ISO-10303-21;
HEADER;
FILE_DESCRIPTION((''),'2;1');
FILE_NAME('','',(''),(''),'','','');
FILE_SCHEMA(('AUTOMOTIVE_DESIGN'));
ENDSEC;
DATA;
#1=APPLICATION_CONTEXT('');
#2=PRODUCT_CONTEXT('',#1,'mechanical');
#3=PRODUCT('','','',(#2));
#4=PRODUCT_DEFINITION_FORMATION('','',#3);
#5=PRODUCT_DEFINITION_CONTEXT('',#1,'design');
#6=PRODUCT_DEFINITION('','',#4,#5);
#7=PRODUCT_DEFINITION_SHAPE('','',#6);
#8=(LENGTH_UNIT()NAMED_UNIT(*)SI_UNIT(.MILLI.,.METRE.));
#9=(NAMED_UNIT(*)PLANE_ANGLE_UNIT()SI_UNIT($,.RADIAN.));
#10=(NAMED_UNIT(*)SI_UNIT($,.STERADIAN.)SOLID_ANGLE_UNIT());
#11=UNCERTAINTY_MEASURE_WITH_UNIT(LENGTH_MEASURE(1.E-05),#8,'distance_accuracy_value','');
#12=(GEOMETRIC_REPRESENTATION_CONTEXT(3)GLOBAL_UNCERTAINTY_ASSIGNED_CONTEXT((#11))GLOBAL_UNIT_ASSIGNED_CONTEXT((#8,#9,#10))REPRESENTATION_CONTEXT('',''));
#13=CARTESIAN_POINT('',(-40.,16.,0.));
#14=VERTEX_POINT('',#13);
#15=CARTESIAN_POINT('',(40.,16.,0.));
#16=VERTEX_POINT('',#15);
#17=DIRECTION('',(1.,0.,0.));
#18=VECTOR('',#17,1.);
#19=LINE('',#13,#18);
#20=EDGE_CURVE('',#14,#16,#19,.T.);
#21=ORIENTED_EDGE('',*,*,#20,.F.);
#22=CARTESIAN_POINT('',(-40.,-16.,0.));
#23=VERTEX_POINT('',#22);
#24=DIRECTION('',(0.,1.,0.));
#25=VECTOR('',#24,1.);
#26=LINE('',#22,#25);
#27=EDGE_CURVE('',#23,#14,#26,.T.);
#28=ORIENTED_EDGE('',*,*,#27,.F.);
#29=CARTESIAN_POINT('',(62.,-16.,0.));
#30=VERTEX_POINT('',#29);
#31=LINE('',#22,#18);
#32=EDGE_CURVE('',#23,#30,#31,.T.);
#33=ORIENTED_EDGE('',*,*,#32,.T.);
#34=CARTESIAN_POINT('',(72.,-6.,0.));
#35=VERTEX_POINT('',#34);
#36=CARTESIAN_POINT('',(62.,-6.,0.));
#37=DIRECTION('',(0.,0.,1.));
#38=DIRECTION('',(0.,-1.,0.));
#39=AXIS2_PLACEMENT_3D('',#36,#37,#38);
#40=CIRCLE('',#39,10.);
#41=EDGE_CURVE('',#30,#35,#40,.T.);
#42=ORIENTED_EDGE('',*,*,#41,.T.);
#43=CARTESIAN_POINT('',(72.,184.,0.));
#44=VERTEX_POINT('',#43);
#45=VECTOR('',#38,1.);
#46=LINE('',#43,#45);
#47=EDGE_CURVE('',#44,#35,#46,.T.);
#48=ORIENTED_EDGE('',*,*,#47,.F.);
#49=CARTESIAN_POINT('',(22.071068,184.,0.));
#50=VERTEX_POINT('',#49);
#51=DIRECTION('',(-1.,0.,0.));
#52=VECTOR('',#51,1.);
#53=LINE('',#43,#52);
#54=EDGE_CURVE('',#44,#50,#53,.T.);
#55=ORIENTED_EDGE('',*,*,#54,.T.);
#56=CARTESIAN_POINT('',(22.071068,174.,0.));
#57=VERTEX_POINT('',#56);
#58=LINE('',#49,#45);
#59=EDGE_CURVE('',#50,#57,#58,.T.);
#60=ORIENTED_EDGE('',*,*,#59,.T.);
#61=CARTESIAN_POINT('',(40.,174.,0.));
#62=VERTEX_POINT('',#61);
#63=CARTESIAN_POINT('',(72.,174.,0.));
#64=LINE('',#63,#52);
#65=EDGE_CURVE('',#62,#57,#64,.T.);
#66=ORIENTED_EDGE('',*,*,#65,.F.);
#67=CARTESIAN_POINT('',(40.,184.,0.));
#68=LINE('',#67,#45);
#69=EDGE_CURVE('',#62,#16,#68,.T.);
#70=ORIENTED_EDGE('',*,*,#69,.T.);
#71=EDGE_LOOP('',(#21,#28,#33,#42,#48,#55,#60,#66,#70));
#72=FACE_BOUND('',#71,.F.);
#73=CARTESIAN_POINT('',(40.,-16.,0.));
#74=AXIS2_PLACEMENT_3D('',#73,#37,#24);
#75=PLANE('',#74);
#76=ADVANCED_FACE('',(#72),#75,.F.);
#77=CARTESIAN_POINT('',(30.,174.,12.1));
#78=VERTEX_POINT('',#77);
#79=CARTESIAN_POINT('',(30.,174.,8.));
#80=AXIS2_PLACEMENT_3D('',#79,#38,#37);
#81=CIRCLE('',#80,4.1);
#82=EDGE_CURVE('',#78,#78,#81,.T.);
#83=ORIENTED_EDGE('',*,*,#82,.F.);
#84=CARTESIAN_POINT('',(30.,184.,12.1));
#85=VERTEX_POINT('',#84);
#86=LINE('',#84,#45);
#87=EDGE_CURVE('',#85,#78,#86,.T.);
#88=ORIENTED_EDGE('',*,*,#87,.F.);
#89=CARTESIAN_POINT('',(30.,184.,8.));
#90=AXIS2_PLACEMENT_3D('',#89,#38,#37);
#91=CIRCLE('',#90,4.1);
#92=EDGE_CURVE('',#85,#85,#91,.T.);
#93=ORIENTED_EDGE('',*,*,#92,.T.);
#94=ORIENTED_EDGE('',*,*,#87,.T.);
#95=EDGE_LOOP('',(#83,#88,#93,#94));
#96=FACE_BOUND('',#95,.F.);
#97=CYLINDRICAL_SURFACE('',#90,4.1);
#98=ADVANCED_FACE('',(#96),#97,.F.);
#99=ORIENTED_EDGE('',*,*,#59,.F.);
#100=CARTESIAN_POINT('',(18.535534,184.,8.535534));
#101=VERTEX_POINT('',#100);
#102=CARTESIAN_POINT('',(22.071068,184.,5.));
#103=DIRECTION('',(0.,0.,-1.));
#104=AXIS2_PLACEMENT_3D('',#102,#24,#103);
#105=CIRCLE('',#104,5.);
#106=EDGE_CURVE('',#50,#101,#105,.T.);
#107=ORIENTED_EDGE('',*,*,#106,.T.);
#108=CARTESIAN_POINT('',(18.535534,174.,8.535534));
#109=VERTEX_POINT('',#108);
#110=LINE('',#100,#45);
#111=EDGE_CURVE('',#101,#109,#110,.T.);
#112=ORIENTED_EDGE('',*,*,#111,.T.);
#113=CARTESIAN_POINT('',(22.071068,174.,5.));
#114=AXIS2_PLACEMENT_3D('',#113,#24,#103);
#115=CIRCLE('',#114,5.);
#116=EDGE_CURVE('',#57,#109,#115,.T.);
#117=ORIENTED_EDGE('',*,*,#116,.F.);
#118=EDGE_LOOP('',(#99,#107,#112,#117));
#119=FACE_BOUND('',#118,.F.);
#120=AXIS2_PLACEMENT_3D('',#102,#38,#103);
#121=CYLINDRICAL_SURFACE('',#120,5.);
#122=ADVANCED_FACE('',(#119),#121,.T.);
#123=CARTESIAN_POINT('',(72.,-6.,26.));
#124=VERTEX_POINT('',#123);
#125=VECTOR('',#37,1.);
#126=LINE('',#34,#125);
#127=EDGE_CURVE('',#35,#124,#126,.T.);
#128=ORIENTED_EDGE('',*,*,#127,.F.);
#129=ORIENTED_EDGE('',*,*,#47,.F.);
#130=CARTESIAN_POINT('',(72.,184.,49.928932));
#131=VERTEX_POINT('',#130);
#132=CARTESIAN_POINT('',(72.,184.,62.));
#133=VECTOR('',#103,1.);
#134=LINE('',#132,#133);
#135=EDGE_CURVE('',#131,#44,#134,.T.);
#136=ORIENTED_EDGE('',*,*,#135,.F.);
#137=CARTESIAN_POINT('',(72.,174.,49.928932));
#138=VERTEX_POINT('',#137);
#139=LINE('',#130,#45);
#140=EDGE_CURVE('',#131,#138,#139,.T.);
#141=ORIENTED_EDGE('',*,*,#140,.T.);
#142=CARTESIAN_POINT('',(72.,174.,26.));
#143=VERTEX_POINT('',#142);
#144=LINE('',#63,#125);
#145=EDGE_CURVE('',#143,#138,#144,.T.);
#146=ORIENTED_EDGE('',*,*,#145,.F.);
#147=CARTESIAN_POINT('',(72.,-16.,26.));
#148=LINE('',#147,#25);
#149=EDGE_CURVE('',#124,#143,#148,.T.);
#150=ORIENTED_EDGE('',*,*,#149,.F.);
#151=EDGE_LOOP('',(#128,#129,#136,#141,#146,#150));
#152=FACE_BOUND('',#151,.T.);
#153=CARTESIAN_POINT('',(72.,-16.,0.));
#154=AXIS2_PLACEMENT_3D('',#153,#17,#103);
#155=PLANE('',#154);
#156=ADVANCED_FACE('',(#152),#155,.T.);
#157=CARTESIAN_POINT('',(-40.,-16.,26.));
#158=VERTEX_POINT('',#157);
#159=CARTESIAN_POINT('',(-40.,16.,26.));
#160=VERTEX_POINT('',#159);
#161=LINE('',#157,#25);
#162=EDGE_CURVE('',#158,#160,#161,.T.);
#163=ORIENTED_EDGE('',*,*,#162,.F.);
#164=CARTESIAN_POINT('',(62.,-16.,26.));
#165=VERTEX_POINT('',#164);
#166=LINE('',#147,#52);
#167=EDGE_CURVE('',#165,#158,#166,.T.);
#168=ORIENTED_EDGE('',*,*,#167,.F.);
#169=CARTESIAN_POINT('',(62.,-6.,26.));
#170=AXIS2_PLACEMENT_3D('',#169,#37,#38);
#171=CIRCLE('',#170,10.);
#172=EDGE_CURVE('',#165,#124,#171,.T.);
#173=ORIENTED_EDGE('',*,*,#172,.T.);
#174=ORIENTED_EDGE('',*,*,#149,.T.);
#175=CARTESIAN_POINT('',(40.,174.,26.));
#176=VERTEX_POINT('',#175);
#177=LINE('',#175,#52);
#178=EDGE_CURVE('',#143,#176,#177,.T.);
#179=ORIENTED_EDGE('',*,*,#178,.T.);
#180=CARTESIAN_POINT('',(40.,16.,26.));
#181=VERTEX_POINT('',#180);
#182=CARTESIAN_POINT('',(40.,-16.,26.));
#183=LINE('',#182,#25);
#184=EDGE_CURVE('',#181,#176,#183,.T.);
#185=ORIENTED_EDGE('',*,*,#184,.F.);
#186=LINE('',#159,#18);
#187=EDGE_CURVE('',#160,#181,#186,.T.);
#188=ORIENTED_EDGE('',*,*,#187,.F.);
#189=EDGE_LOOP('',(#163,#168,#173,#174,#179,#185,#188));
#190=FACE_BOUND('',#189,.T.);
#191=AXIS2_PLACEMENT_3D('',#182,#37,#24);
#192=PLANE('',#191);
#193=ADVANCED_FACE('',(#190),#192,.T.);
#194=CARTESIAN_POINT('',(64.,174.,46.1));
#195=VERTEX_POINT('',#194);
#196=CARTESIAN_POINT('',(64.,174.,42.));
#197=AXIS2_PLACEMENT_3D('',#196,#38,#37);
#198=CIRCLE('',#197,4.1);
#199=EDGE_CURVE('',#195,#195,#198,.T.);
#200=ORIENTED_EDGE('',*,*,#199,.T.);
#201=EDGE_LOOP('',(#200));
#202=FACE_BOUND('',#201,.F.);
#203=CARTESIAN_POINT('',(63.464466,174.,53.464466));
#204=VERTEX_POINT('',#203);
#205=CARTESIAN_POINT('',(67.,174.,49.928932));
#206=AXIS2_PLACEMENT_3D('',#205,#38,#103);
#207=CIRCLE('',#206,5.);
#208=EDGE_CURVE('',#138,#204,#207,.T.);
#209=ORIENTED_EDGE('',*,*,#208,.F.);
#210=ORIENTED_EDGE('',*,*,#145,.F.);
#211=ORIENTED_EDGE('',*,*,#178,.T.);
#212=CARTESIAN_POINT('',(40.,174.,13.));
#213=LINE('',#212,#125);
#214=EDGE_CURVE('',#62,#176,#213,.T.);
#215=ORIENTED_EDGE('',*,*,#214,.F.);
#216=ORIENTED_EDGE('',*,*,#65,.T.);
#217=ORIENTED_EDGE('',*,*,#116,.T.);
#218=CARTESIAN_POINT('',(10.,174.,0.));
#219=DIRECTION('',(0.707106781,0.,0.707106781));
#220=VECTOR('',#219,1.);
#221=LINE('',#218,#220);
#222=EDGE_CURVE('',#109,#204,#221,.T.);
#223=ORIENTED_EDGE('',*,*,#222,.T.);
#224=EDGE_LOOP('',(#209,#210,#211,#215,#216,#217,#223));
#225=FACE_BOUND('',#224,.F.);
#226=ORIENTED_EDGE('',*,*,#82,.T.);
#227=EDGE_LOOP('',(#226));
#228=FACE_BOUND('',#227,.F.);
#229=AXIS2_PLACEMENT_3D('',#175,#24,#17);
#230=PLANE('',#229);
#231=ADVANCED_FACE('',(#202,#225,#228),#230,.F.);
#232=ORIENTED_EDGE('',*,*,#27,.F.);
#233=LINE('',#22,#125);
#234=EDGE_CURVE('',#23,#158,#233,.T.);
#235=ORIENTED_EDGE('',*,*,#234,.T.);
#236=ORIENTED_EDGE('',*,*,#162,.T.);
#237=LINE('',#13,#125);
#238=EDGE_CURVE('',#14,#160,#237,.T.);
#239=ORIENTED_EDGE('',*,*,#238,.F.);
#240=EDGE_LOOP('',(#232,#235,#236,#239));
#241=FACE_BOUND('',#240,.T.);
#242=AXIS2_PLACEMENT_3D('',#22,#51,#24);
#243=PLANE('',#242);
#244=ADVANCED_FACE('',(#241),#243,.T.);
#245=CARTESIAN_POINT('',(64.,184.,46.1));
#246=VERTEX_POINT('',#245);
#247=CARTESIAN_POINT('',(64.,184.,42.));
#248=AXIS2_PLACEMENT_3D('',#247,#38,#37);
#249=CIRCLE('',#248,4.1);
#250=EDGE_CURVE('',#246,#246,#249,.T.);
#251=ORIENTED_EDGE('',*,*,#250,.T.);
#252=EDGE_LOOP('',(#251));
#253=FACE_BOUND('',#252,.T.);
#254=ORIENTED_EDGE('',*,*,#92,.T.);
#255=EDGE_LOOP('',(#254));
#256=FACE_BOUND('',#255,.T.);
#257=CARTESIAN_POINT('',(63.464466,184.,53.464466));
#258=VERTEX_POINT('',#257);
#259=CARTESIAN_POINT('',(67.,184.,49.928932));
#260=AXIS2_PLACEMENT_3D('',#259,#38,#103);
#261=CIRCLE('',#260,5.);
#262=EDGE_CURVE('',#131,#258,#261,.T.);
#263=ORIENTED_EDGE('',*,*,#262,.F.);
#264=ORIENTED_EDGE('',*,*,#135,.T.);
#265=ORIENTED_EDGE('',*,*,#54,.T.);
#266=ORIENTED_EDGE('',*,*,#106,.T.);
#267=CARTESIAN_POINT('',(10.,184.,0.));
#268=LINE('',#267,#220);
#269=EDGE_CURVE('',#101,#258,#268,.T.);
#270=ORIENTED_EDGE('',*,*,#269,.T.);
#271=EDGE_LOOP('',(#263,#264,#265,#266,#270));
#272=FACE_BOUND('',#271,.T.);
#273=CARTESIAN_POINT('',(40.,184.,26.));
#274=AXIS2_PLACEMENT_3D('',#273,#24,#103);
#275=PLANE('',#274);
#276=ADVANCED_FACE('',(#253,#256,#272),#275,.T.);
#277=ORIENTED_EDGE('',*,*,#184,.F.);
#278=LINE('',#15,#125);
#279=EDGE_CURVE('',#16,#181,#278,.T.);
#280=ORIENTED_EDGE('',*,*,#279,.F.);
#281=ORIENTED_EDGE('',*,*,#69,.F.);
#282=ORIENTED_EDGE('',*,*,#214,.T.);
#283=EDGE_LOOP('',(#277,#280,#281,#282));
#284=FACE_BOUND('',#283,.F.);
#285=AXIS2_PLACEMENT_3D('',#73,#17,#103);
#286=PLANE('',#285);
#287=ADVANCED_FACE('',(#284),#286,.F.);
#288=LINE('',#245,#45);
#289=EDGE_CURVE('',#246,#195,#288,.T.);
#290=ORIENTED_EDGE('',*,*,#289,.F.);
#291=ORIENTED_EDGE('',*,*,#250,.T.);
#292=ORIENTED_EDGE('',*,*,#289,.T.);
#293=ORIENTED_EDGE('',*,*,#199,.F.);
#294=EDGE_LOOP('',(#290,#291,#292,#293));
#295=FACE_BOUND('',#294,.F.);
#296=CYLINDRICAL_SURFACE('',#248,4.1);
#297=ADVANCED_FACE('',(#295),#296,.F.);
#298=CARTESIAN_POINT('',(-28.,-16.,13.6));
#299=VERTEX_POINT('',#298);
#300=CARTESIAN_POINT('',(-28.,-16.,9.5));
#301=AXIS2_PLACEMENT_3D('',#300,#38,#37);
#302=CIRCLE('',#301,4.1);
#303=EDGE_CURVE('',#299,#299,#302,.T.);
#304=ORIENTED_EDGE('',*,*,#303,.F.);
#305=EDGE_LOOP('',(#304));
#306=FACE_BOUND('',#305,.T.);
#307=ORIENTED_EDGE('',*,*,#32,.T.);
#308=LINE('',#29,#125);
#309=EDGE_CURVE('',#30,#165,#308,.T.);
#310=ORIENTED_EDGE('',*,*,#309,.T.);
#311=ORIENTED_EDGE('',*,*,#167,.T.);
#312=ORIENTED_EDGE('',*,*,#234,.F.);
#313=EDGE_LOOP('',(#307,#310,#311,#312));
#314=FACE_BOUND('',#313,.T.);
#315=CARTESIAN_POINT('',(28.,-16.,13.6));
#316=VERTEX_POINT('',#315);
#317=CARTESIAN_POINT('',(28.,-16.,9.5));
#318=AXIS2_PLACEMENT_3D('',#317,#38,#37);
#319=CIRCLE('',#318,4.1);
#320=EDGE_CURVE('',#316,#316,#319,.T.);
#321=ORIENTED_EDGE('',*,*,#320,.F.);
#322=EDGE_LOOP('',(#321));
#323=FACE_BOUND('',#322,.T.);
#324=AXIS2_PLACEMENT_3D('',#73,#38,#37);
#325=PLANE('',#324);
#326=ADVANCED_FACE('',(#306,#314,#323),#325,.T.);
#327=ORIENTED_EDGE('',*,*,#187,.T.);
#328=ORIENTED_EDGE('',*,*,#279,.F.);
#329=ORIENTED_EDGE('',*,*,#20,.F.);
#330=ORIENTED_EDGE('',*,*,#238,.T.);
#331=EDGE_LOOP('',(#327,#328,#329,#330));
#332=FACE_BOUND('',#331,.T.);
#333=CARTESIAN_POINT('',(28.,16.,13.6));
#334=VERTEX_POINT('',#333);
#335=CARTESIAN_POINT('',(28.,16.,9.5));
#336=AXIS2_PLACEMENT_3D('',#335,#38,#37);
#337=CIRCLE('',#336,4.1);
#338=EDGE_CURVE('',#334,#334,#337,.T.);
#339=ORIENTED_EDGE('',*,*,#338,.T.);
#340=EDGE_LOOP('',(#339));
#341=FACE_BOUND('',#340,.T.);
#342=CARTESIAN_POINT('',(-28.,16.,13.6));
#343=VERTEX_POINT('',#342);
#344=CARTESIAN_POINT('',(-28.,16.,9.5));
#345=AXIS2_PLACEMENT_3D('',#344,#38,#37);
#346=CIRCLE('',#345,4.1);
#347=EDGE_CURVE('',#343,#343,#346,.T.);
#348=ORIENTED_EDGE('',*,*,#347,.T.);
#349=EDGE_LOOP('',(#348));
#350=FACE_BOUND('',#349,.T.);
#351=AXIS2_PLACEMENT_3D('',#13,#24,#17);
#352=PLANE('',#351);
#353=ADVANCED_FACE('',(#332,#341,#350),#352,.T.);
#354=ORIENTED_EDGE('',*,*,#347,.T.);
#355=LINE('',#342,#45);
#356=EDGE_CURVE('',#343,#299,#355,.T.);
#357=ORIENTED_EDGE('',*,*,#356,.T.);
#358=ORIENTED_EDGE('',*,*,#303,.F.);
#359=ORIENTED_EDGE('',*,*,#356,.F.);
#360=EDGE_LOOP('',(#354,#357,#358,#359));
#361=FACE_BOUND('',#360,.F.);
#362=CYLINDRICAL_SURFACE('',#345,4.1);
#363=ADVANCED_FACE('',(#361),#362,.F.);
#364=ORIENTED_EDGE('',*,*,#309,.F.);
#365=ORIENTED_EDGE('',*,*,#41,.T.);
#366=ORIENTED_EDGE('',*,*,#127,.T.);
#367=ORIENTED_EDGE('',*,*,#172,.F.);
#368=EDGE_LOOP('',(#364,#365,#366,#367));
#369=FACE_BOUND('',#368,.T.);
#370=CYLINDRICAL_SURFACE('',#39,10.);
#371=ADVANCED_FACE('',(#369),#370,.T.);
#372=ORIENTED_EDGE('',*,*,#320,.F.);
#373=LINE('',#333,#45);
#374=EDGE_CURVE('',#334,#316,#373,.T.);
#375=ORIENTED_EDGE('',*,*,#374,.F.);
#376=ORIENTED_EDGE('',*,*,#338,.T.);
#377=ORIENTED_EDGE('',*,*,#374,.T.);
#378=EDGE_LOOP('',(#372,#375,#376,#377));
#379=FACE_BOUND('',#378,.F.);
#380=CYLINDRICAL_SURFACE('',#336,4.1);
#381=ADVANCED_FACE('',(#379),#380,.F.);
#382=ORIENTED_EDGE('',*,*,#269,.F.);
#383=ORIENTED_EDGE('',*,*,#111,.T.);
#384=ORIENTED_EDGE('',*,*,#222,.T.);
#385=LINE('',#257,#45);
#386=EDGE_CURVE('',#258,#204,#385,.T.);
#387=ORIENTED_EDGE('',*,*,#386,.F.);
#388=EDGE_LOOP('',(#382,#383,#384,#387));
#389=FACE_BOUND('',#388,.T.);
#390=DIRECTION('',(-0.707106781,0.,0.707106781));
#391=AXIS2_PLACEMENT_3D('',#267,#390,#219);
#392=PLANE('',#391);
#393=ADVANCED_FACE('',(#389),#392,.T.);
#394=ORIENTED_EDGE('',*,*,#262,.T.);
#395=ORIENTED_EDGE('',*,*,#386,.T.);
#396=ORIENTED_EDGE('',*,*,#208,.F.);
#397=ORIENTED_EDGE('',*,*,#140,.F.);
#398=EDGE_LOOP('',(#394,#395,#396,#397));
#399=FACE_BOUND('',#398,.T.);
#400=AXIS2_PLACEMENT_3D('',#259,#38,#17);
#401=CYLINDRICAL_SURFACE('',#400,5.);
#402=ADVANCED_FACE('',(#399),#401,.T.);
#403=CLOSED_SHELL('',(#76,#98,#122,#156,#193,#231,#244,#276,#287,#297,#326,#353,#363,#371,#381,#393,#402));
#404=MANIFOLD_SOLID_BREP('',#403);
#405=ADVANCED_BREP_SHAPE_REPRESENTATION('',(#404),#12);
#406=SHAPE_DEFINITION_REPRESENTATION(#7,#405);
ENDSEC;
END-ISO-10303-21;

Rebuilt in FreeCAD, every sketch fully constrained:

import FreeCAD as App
import Part
import Sketcher

V = App.Vector
Q = App.Units.Quantity


def edges_at(feature, points):
    """Names of the edges that pass closest to the given points."""
    edges = feature.Shape.Edges
    near = lambda p: min(range(len(edges)), key=lambda i: edges[i].distToShape(Part.Vertex(*p))[0])
    return sorted({f"Edge{near(p) + 1}" for p in points})

doc = App.newDocument("Part")
body = doc.addObject("PartDesign::Body", "Body")

# Sketch on XY plane
sketch1 = body.newObject("Sketcher::SketchObject", "Sketch")
sketch1.AttachmentSupport = (doc.getObject("XY_Plane"), [""])
sketch1.MapMode = "FlatFace"
sketch1.addGeometry([
    Part.LineSegment(V(40, 16, 0), V(-40, 16, 0)),
    Part.LineSegment(V(-40, 16, 0), V(-40, -16, 0)),
    Part.LineSegment(V(-40, -16, 0), V(40, -16, 0)),
    Part.LineSegment(V(40, -16, 0), V(40, 16, 0)),
], False)
sketch1.addConstraint([
    Sketcher.Constraint("Coincident", 0, 2, 1, 1),
    Sketcher.Constraint("Coincident", 1, 2, 2, 1),
    Sketcher.Constraint("Coincident", 2, 2, 3, 1),
    Sketcher.Constraint("Coincident", 3, 2, 0, 1),
    Sketcher.Constraint("Horizontal", 0),
    Sketcher.Constraint("Vertical", 1),
    Sketcher.Constraint("Horizontal", 2),
    Sketcher.Constraint("Vertical", 3),
    Sketcher.Constraint("Symmetric", 0, 2, 2, 2, -1, 1),
    Sketcher.Constraint("DistanceX", 0, 2, 0, 1, Q("80 mm")),
    Sketcher.Constraint("DistanceY", 1, 2, 1, 1, Q("32 mm")),
])
pad1 = body.newObject("PartDesign::Pad", "Pad")
pad1.Profile = sketch1
pad1.Length = 26

# Sketch on XZ plane
sketch2 = body.newObject("Sketcher::SketchObject", "Sketch001")
sketch2.AttachmentSupport = (doc.getObject("XZ_Plane"), [""])
sketch2.MapMode = "FlatFace"
sketch2.AttachmentOffset = App.Placement(V(0, 0, -16), App.Rotation())
sketch2.addGeometry([
    Part.Circle(V(-28, 9.5, 0), V(0, 0, 1), 4.1),
    Part.Circle(V(28, 9.5, 0), V(0, 0, 1), 4.1),
], False)
sketch2.addConstraint([
    Sketcher.Constraint("Equal", 0, 1),
    Sketcher.Constraint("Symmetric", 0, 3, 1, 3, -2),
    Sketcher.Constraint("Diameter", 0, Q("8.2 mm")),
    Sketcher.Constraint("DistanceX", 0, 3, -1, 1, Q("28 mm")),
    Sketcher.Constraint("DistanceY", -1, 1, 0, 3, Q("9.5 mm")),
])
doc.recompute()
hole = body.newObject("PartDesign::Hole", "Hole")
hole.Profile = sketch2
hole.ThreadType = "None"
hole.Diameter = 8.2
hole.DepthType = "ThroughAll"
hole.Reversed = True

# Sketch on YZ plane
sketch3 = body.newObject("Sketcher::SketchObject", "Sketch002")
sketch3.AttachmentSupport = (doc.getObject("YZ_Plane"), [""])
sketch3.MapMode = "FlatFace"
sketch3.AttachmentOffset = App.Placement(V(0, 0, 40), App.Rotation())
sketch3.addGeometry([
    Part.LineSegment(V(-16, 26, 0), V(-16, 0, 0)),
    Part.LineSegment(V(-16, 0, 0), V(184, 0, 0)),
    Part.LineSegment(V(184, 0, 0), V(184, 26, 0)),
    Part.LineSegment(V(184, 26, 0), V(-16, 26, 0)),
], False)
sketch3.addConstraint([
    Sketcher.Constraint("Coincident", 0, 2, 1, 1),
    Sketcher.Constraint("Coincident", 1, 2, 2, 1),
    Sketcher.Constraint("Coincident", 2, 2, 3, 1),
    Sketcher.Constraint("Coincident", 3, 2, 0, 1),
    Sketcher.Constraint("Vertical", 0),
    Sketcher.Constraint("Horizontal", 1),
    Sketcher.Constraint("Vertical", 2),
    Sketcher.Constraint("Horizontal", 3),
    Sketcher.Constraint("PointOnObject", 0, 2, -1),
    Sketcher.Constraint("DistanceX", 1, 1, 1, 2, Q("200 mm")),
    Sketcher.Constraint("DistanceY", 0, 2, 0, 1, Q("26 mm")),
    Sketcher.Constraint("DistanceX", 0, 2, -1, 1, Q("16 mm")),
])
pad2 = body.newObject("PartDesign::Pad", "Pad001")
pad2.Profile = sketch3
pad2.Length = 32
doc.recompute()

fillet = body.newObject("PartDesign::Fillet", "Fillet")
fillet.Base = (pad2, edges_at(pad2, [(72, -16, 13)]))
fillet.Radius = 10

# Sketch on XZ plane
sketch4 = body.newObject("Sketcher::SketchObject", "Sketch003")
sketch4.AttachmentSupport = (doc.getObject("XZ_Plane"), [""])
sketch4.MapMode = "FlatFace"
sketch4.AttachmentOffset = App.Placement(V(0, 0, -184), App.Rotation())
sketch4.addGeometry([
    Part.LineSegment(V(72, 62, 0), V(72, 0, 0)),
    Part.LineSegment(V(72, 0, 0), V(10, 0, 0)),
    Part.LineSegment(V(10, 0, 0), V(72, 62, 0)),
], False)
sketch4.addConstraint([
    Sketcher.Constraint("Coincident", 0, 2, 1, 1),
    Sketcher.Constraint("Coincident", 1, 2, 2, 1),
    Sketcher.Constraint("Coincident", 2, 2, 0, 1),
    Sketcher.Constraint("Vertical", 0),
    Sketcher.Constraint("Horizontal", 1),
    Sketcher.Constraint("PointOnObject", 0, 2, -1),
    Sketcher.Constraint("Equal", 1, 0),
    Sketcher.Constraint("DistanceX", 1, 2, 1, 1, Q("62 mm")),
    Sketcher.Constraint("DistanceX", -1, 1, 0, 2, Q("72 mm")),
])
pad3 = body.newObject("PartDesign::Pad", "Pad002")
pad3.Profile = sketch4
pad3.Length = 10
doc.recompute()

fillet2 = body.newObject("PartDesign::Fillet", "Fillet001")
fillet2.Base = (pad3, edges_at(pad3, [(10, 179, 0)]))
fillet2.Radius = 5
doc.recompute()

fillet3 = body.newObject("PartDesign::Fillet", "Fillet002")
fillet3.Base = (fillet2, edges_at(fillet2, [(72, 179, 62)]))
fillet3.Radius = 5

# Sketch on XZ plane
sketch5 = body.newObject("Sketcher::SketchObject", "Sketch004")
sketch5.AttachmentSupport = (doc.getObject("XZ_Plane"), [""])
sketch5.MapMode = "FlatFace"
sketch5.AttachmentOffset = App.Placement(V(0, 0, -184), App.Rotation())
sketch5.addGeometry([
    Part.Circle(V(30, 8, 0), V(0, 0, 1), 4.1),
    Part.Circle(V(64, 42, 0), V(0, 0, 1), 4.1),
], False)
sketch5.addConstraint([
    Sketcher.Constraint("Equal", 0, 1),
    Sketcher.Constraint("Diameter", 0, Q("8.2 mm")),
    Sketcher.Constraint("DistanceX", -1, 1, 0, 3, Q("30 mm")),
    Sketcher.Constraint("DistanceY", -1, 1, 0, 3, Q("8 mm")),
    Sketcher.Constraint("DistanceX", -1, 1, 1, 3, Q("64 mm")),
    Sketcher.Constraint("DistanceY", -1, 1, 1, 3, Q("42 mm")),
])
doc.recompute()
hole2 = body.newObject("PartDesign::Hole", "Hole001")
hole2.Profile = sketch5
hole2.ThreadType = "None"
hole2.Diameter = 8.2
hole2.DepthType = "Dimension"
hole2.Depth = 20
hole2.DrillPoint = "Flat"
hole2.Reversed = True

doc.recompute()
